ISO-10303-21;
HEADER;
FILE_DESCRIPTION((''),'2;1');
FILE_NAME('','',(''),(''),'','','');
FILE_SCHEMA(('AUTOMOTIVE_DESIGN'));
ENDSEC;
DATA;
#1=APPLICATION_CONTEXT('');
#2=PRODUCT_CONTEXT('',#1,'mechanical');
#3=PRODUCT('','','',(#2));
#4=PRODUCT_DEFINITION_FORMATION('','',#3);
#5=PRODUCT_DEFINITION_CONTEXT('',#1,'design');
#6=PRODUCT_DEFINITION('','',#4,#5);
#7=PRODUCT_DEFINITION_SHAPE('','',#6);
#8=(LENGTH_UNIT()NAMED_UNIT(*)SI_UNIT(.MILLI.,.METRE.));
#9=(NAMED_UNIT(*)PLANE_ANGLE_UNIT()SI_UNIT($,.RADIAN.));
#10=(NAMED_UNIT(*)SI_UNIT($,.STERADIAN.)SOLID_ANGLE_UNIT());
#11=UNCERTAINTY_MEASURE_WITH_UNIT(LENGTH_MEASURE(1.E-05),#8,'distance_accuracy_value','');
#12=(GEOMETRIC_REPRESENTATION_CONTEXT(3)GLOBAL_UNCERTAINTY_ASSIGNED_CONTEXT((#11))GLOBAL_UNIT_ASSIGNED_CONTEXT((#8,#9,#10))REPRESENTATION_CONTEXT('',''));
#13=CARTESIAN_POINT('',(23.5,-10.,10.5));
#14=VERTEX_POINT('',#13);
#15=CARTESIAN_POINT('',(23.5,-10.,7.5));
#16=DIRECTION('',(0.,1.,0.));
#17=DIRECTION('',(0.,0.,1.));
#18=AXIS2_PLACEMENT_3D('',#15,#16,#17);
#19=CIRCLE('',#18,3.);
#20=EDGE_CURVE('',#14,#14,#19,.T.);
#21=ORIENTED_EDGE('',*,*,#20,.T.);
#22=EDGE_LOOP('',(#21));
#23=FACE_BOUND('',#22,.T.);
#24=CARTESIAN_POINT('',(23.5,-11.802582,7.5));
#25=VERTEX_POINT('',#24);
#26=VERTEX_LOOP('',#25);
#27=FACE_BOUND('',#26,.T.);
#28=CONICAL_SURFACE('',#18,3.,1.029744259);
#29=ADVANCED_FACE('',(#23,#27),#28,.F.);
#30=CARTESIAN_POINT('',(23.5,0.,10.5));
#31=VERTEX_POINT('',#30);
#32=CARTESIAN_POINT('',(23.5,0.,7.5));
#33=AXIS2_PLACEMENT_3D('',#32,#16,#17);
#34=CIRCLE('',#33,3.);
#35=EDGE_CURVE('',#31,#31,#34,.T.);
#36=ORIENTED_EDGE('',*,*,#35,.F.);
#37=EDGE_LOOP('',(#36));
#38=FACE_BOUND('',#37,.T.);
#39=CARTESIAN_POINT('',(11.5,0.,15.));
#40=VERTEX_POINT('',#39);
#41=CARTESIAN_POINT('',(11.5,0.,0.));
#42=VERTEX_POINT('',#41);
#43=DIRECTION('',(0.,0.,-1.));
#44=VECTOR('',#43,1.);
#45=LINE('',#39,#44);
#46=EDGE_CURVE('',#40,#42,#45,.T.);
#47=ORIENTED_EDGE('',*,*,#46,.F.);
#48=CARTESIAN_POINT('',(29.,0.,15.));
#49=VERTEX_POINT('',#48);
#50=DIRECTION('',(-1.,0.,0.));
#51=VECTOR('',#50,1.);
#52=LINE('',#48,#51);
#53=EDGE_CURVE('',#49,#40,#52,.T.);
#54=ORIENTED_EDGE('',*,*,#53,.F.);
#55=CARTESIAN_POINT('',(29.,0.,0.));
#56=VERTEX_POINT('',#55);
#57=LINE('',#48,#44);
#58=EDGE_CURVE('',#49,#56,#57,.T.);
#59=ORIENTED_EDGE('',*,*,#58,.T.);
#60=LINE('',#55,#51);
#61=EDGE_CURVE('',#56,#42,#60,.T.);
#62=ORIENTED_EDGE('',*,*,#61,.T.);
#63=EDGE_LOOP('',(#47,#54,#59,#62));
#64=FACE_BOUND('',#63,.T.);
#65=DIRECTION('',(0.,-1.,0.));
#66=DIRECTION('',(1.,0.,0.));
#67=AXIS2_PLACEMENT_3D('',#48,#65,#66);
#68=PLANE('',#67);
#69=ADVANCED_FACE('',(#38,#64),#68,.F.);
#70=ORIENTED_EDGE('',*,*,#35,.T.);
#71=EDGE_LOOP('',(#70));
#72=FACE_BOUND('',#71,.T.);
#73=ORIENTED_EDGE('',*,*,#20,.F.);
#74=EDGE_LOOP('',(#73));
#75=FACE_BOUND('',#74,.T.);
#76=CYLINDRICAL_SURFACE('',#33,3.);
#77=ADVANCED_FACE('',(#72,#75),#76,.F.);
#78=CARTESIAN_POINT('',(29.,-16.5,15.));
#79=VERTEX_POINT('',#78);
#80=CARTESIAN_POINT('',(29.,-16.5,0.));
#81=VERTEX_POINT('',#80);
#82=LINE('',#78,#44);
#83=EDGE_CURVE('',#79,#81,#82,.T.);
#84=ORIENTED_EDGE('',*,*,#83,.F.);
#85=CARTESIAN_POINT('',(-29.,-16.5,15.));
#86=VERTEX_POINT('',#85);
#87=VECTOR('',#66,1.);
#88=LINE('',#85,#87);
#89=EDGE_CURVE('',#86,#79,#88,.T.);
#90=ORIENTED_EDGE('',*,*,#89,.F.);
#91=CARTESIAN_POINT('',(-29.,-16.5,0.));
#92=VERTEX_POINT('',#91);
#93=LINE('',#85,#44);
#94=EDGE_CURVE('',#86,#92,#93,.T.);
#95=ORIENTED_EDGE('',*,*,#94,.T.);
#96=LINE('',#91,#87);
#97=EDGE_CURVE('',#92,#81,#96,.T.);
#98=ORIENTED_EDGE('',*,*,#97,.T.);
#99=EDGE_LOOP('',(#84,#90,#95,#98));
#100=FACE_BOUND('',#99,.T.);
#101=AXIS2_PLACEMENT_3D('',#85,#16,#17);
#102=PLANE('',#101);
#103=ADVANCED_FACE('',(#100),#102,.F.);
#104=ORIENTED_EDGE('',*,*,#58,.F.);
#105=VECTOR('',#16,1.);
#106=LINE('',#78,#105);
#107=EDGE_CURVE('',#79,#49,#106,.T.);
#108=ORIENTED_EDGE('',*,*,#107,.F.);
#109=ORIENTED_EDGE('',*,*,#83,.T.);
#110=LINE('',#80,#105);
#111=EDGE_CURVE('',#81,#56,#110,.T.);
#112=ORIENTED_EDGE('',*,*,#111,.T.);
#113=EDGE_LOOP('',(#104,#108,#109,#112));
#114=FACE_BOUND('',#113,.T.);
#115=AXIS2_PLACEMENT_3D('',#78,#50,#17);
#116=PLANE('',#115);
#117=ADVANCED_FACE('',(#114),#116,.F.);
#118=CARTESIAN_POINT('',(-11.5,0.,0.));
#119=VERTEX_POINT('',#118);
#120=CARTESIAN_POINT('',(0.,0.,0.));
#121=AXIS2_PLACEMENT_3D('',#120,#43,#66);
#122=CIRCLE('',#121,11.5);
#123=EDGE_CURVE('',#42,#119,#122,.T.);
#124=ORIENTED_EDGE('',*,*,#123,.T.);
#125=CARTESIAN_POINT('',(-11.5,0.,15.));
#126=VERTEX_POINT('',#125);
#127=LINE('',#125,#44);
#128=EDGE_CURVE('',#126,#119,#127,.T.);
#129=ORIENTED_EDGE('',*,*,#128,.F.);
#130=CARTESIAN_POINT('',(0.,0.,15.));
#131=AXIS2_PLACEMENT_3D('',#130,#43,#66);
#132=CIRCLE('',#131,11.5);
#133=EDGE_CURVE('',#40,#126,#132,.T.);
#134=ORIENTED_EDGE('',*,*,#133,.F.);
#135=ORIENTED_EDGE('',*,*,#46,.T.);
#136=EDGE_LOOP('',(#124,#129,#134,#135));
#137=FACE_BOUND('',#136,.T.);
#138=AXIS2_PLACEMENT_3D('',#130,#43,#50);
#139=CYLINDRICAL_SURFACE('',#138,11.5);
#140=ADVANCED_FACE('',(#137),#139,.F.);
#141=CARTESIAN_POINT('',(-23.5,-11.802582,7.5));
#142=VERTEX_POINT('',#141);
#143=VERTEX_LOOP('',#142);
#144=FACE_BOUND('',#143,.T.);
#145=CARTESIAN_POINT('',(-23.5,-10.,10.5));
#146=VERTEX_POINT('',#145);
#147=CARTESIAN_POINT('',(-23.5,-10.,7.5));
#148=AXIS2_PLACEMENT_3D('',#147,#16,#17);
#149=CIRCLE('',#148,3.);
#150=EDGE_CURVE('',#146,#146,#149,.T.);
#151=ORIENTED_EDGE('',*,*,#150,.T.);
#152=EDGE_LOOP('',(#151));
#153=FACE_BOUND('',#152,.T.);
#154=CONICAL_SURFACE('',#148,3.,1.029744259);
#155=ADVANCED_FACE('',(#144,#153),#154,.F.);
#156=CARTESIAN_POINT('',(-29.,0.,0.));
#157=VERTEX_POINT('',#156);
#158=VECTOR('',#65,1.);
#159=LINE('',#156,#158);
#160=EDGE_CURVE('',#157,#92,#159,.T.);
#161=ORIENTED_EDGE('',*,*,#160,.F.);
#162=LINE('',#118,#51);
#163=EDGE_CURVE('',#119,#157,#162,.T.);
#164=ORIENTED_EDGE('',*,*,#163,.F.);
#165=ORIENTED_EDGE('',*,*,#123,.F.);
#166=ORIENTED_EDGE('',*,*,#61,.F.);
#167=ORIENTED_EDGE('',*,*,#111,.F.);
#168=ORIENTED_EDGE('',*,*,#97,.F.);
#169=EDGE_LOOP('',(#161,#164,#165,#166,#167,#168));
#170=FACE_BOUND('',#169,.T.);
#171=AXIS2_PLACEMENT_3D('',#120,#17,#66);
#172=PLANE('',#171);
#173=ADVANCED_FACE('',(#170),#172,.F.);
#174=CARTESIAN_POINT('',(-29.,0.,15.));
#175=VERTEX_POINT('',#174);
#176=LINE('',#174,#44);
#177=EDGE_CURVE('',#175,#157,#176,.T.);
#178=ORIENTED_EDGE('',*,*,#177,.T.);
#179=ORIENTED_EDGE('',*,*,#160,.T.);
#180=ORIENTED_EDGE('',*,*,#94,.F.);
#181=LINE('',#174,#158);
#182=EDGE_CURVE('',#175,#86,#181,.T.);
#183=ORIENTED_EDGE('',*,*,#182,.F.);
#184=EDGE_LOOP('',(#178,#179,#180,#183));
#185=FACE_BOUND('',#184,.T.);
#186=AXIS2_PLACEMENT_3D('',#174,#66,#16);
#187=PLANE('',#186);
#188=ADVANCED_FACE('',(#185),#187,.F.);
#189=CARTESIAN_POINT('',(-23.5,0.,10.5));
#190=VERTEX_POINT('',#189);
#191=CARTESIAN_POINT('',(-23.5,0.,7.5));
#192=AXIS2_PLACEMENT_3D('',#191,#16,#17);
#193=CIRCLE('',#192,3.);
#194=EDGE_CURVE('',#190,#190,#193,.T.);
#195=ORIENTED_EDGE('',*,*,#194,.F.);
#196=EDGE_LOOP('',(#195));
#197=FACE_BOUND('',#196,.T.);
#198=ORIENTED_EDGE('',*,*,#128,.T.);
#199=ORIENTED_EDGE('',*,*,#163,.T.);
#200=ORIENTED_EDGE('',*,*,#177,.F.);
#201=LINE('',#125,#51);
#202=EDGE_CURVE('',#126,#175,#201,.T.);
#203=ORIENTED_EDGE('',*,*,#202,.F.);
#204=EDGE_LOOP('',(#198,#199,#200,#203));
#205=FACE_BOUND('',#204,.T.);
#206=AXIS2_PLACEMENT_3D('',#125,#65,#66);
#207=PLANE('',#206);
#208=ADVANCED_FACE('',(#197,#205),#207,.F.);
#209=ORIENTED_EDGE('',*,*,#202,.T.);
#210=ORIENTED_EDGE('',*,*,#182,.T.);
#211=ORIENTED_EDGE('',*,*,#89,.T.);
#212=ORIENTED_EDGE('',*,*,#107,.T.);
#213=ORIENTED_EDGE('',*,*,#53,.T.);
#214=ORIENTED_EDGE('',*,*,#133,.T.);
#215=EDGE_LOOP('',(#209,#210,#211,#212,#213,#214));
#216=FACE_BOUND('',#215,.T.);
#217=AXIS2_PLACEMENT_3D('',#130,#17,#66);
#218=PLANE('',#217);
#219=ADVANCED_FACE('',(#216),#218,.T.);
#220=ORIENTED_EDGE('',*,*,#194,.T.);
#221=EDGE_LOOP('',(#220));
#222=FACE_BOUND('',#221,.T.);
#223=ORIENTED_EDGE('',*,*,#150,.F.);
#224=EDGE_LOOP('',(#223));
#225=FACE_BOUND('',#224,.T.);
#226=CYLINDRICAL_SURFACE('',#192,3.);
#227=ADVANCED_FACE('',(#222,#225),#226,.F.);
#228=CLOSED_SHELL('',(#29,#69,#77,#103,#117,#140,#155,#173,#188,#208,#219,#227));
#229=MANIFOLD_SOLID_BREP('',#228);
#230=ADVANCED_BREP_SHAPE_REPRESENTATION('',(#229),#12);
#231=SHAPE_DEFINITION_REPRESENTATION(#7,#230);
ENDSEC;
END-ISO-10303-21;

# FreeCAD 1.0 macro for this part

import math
import FreeCAD as App
import Part
import Sketcher

V = App.Vector
Q = App.Units.Quantity


def add_polygon(sketch, points):
    """Adds a closed chain of lines whose ends are joined by coincident constraints."""
    first, n = sketch.GeometryCount, len(points)
    for a, b in zip(points, points[1:] + points[:1]):
        sketch.addGeometry(Part.LineSegment(App.Vector(*a, 0), App.Vector(*b, 0)), False)
    for i in range(n):
        sketch.addConstraint(Sketcher.Constraint("Coincident", first + i, 2, first + (i + 1) % n, 1))

doc = App.newDocument("Part")
body = doc.addObject("PartDesign::Body", "Body")

sketch1 = body.newObject("Sketcher::SketchObject", "Sketch")
sketch1.AttachmentSupport = (doc.getObject("XY_Plane"), [""])
sketch1.MapMode = "FlatFace"
sketch1.addGeometry(Part.LineSegment(V(-12, 0, 0), V(-29, 0, 0)), False)
sketch1.addGeometry(Part.LineSegment(V(-29, 0, 0), V(-29, -16, 0)), False)
sketch1.addGeometry(Part.LineSegment(V(-29, -16, 0), V(29, -16, 0)), False)
sketch1.addGeometry(Part.LineSegment(V(29, -16, 0), V(29, 0, 0)), False)
sketch1.addGeometry(Part.LineSegment(V(29, 0, 0), V(12, 0, 0)), False)
sketch1.addGeometry(Part.ArcOfCircle(Part.Circle(V(0, 0, 0), V(0, 0, 1), 12), math.radians(180), math.radians(360)), False)
sketch1.addConstraint(Sketcher.Constraint("Coincident", 0, 2, 1, 1))
sketch1.addConstraint(Sketcher.Constraint("Coincident", 1, 2, 2, 1))
sketch1.addConstraint(Sketcher.Constraint("Coincident", 2, 2, 3, 1))
sketch1.addConstraint(Sketcher.Constraint("Coincident", 3, 2, 4, 1))
sketch1.addConstraint(Sketcher.Constraint("Coincident", 4, 2, 5, 2))
sketch1.addConstraint(Sketcher.Constraint("Coincident", 5, 1, 0, 1))
sketch1.addConstraint(Sketcher.Constraint("Horizontal", 0))
sketch1.addConstraint(Sketcher.Constraint("Vertical", 1))
sketch1.addConstraint(Sketcher.Constraint("Horizontal", 2))
sketch1.addConstraint(Sketcher.Constraint("Vertical", 3))
sketch1.addConstraint(Sketcher.Constraint("Horizontal", 4))
sketch1.addConstraint(Sketcher.Constraint("Coincident", 5, 3, -1, 1))
sketch1.addConstraint(Sketcher.Constraint("Symmetric", 0, 2, 3, 2, -1, 1))
sketch1.addConstraint(Sketcher.Constraint("PointOnObject", 0, 2, -1))
sketch1.addConstraint(Sketcher.Constraint("Radius", 5, 11.5))
sketch1.addConstraint(Sketcher.Constraint("DistanceX", 2, 1, 2, 2, 58.0))
sketch1.addConstraint(Sketcher.Constraint("DistanceY", 1, 2, 1, 1, 16.5))
pad1 = body.newObject("PartDesign::Pad", "Pad")
pad1.Profile = sketch1
pad1.Length = 15

sketch2 = body.newObject("Sketcher::SketchObject", "Sketch001")
sketch2.AttachmentSupport = (doc.getObject("YZ_Plane"), [""])
sketch2.MapMode = "FlatFace"
sketch2.AttachmentOffset = App.Placement(V(0, 0, -23.5), App.Rotation())
add_polygon(sketch2, [(-11.8, 7.5), (0, 7.5), (0, 10.5), (-10, 10.5)])
sketch2.addGeometry(Part.LineSegment(V(0, 7.5, 0), V(-11.8, 7.5, 0)), True)
sketch2.addConstraint(Sketcher.Constraint("Horizontal", 0))
sketch2.addConstraint(Sketcher.Constraint("Vertical", 1))
sketch2.addConstraint(Sketcher.Constraint("Horizontal", 2))
sketch2.addConstraint(Sketcher.Constraint("Horizontal", 4))
sketch2.addConstraint(Sketcher.Constraint("Coincident", 4, 1, 0, 2))
sketch2.addConstraint(Sketcher.Constraint("PointOnObject", 0, 2, -2))
sketch2.addConstraint(Sketcher.Constraint("Equal", 0, 4))
sketch2.addConstraint(Sketcher.Constraint("DistanceX", 2, 2, 2, 1, 10.0))
sketch2.addConstraint(Sketcher.Constraint("DistanceY", 1, 1, 1, 2, 3.0))
sketch2.addConstraint(Sketcher.Constraint("Angle", 3, Q("-121 deg")))
sketch2.addConstraint(Sketcher.Constraint("DistanceY", -1, 1, 0, 2, 7.5))
groove = body.newObject("PartDesign::Groove", "Groove")
groove.Profile = sketch2
groove.ReferenceAxis = (sketch2, ["Axis0"])
groove.Angle = 360
doc.recompute()

mirrored = body.newObject("PartDesign::Mirrored", "Mirrored")
mirrored.Originals = [groove]
mirrored.MirrorPlane = (doc.getObject("YZ_Plane"), [""])
body.Tip = mirrored

doc.recompute()
